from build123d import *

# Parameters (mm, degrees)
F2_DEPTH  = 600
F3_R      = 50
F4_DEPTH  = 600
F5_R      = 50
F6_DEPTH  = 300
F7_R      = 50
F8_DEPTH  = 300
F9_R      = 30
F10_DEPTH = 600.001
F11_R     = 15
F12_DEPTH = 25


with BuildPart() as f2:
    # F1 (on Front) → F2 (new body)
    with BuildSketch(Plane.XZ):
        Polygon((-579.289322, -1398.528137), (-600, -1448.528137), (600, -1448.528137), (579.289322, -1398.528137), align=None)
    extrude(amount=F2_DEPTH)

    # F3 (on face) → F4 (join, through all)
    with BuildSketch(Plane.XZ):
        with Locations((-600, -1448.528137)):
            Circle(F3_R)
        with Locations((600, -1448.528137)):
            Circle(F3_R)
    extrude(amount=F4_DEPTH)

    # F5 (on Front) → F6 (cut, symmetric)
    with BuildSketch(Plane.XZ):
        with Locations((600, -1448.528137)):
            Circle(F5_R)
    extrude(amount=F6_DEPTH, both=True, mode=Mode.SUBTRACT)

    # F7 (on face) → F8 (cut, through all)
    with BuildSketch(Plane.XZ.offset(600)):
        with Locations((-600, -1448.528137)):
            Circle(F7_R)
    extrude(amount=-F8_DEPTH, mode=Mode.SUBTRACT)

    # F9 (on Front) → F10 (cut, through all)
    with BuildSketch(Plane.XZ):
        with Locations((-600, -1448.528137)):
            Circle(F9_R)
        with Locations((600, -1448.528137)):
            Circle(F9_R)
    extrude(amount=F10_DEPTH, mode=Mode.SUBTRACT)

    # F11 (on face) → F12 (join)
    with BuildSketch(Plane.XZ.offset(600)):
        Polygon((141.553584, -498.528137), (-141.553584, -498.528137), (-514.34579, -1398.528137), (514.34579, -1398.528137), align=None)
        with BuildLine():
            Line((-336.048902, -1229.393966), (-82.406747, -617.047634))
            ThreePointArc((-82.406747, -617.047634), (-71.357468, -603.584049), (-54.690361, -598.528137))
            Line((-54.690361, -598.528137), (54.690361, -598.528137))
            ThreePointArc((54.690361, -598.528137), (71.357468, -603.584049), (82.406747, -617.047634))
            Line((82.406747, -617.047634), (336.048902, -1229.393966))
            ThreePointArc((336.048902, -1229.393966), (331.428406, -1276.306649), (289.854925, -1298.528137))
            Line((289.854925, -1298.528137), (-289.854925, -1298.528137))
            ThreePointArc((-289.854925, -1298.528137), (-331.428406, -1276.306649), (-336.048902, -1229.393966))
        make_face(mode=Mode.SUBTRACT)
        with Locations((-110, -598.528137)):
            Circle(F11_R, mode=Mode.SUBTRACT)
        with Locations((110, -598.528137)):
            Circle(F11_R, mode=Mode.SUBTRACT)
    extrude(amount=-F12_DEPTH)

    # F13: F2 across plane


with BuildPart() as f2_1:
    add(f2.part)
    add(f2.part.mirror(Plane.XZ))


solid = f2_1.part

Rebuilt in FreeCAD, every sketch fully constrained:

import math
import FreeCAD as App
import Part
import Sketcher
Q = App.Units.Quantity


def add_polygon(sketch, points):
    """Adds a closed chain of lines whose ends are joined by coincident constraints."""
    first, n = sketch.GeometryCount, len(points)
    for a, b in zip(points, points[1:] + points[:1]):
        sketch.addGeometry(Part.LineSegment(App.Vector(*a, 0), App.Vector(*b, 0)), False)
    for i in range(n):
        sketch.addConstraint(Sketcher.Constraint("Coincident", first + i, 2, first + (i + 1) % n, 1))

doc = App.newDocument("Part")
body = doc.addObject("PartDesign::Body", "Body")

# Sketch on XZ plane
sketch1 = body.newObject("Sketcher::SketchObject", "Sketch")
sketch1.AttachmentSupport = (doc.getObject("XZ_Plane"), [""])
sketch1.MapMode = "FlatFace"
add_polygon(sketch1, [(-579, -1399), (-600, -1449), (600, -1449), (579, -1399)])  # lines 0-3
sketch1.addConstraint([
    Sketcher.Constraint("Horizontal", 1),
    Sketcher.Constraint("Horizontal", 3),
    Sketcher.Constraint("Equal", 0, 2),
    Sketcher.Constraint("DistanceX", 1, 1, 1, 2, Q("1200 mm")),
    Sketcher.Constraint("DistanceX", 0, 2, -1, 1, Q("600 mm")),
    Sketcher.Constraint("Angle", 0, Q("-112.5 deg")),
    Sketcher.Constraint("DistanceY", 1, 2, 2, 2, Q("50 mm")),
    Sketcher.Constraint("DistanceY", 0, 2, -1, 1, Q("1448.528137 mm")),
])
pad1 = body.newObject("PartDesign::Pad", "Pad")
pad1.Profile = sketch1
pad1.Length = 600

# Sketch on XZ plane
sketch2 = body.newObject("Sketcher::SketchObject", "Sketch001")
sketch2.AttachmentSupport = (doc.getObject("XZ_Plane"), [""])
sketch2.MapMode = "FlatFace"
sketch2.addGeometry([
    Part.Circle(App.Vector(-600, -1449, 0), App.Vector(0, 0, 1), 50),
    Part.Circle(App.Vector(600, -1449, 0), App.Vector(0, 0, 1), 50),
], False)
sketch2.addConstraint([
    Sketcher.Constraint("Equal", 0, 1),
    Sketcher.Constraint("Symmetric", 0, 3, 1, 3, -2),
    Sketcher.Constraint("Diameter", 0, Q("100 mm")),
    Sketcher.Constraint("DistanceX", 0, 3, -1, 1, Q("600 mm")),
    Sketcher.Constraint("DistanceY", 0, 3, -1, 1, Q("1448.528137 mm")),
])
pad2 = body.newObject("PartDesign::Pad", "Pad001")
pad2.Profile = sketch2
pad2.Type = "UpToLast"

# Sketch on XZ plane
sketch3 = body.newObject("Sketcher::SketchObject", "Sketch002")
sketch3.AttachmentSupport = (doc.getObject("XZ_Plane"), [""])
sketch3.MapMode = "FlatFace"
sketch3.addGeometry(Part.Circle(App.Vector(600, -1449, 0), App.Vector(0, 0, 1), 50), False)
sketch3.addConstraint([
    Sketcher.Constraint("Diameter", 0, Q("100 mm")),
    Sketcher.Constraint("DistanceX", -1, 1, 0, 3, Q("600 mm")),
    Sketcher.Constraint("DistanceY", 0, 3, -1, 1, Q("1448.528137 mm")),
])
pocket1 = body.newObject("PartDesign::Pocket", "Pocket")
pocket1.Profile = sketch3
pocket1.Length = 600
pocket1.Midplane = True

# Sketch on XZ plane
sketch4 = body.newObject("Sketcher::SketchObject", "Sketch003")
sketch4.AttachmentSupport = (doc.getObject("XZ_Plane"), [""])
sketch4.MapMode = "FlatFace"
sketch4.AttachmentOffset = App.Placement(App.Vector(0, 0, 600), App.Rotation())
sketch4.addGeometry(Part.Circle(App.Vector(-600, -1449, 0), App.Vector(0, 0, 1), 50), False)
sketch4.addConstraint([
    Sketcher.Constraint("Diameter", 0, Q("100 mm")),
    Sketcher.Constraint("DistanceX", 0, 3, -1, 1, Q("600 mm")),
    Sketcher.Constraint("DistanceY", 0, 3, -1, 1, Q("1448.528137 mm")),
])
pocket2 = body.newObject("PartDesign::Pocket", "Pocket001")
pocket2.Profile = sketch4
pocket2.Length = 300

# Sketch on XZ plane
sketch5 = body.newObject("Sketcher::SketchObject", "Sketch004")
sketch5.AttachmentSupport = (doc.getObject("XZ_Plane"), [""])
sketch5.MapMode = "FlatFace"
sketch5.addGeometry([
    Part.Circle(App.Vector(-600, -1449, 0), App.Vector(0, 0, 1), 30),
    Part.Circle(App.Vector(600, -1449, 0), App.Vector(0, 0, 1), 30),
], False)
sketch5.addConstraint([
    Sketcher.Constraint("Equal", 0, 1),
    Sketcher.Constraint("Symmetric", 0, 3, 1, 3, -2),
    Sketcher.Constraint("Diameter", 0, Q("60 mm")),
    Sketcher.Constraint("DistanceX", 0, 3, -1, 1, Q("600 mm")),
    Sketcher.Constraint("DistanceY", 0, 3, -1, 1, Q("1448.528137 mm")),
])
pocket3 = body.newObject("PartDesign::Pocket", "Pocket002")
pocket3.Profile = sketch5
pocket3.Type = "ThroughAll"
pocket3.Reversed = True

# Sketch on XZ plane
sketch6 = body.newObject("Sketcher::SketchObject", "Sketch005")
sketch6.AttachmentSupport = (doc.getObject("XZ_Plane"), [""])
sketch6.MapMode = "FlatFace"
sketch6.AttachmentOffset = App.Placement(App.Vector(0, 0, 600), App.Rotation())
add_polygon(sketch6, [(142, -499), (-142, -499), (-514, -1399), (514, -1399)])  # lines 0-3
sketch6.addGeometry(Part.ArcOfCircle(Part.Circle(App.Vector(-290, -1249, 0), App.Vector(0, 0, 1), 50), math.radians(157), math.radians(270)), False)  # 4
sketch6.addGeometry(Part.LineSegment(App.Vector(-336, -1229, 0), App.Vector(-82, -617, 0)), False)  # 5
sketch6.addGeometry(Part.ArcOfCircle(Part.Circle(App.Vector(-55, -629, 0), App.Vector(0, 0, 1), 30), math.radians(90), math.radians(157)), False)  # 6
sketch6.addGeometry(Part.LineSegment(App.Vector(-55, -599, 0), App.Vector(55, -599, 0)), False)  # 7
sketch6.addGeometry(Part.ArcOfCircle(Part.Circle(App.Vector(55, -629, 0), App.Vector(0, 0, 1), 30), math.radians(23), math.radians(90)), False)  # 8
sketch6.addGeometry(Part.LineSegment(App.Vector(82, -617, 0), App.Vector(336, -1229, 0)), False)  # 9
sketch6.addGeometry(Part.ArcOfCircle(Part.Circle(App.Vector(290, -1249, 0), App.Vector(0, 0, 1), 50), math.radians(-90), math.radians(23)), False)  # 10
sketch6.addGeometry(Part.LineSegment(App.Vector(290, -1299, 0), App.Vector(-290, -1299, 0)), False)  # 11
sketch6.addGeometry(Part.Circle(App.Vector(-110, -599, 0), App.Vector(0, 0, 1), 15), False)  # 12
sketch6.addGeometry(Part.Circle(App.Vector(110, -599, 0), App.Vector(0, 0, 1), 15), False)  # 13
sketch6.addConstraint([
    Sketcher.Constraint("Tangent", 4, 1, 5, 1),
    Sketcher.Constraint("Tangent", 5, 2, 6, 2),
    Sketcher.Constraint("Tangent", 6, 1, 7, 1),
    Sketcher.Constraint("Tangent", 7, 2, 8, 2),
    Sketcher.Constraint("Tangent", 8, 1, 9, 1),
    Sketcher.Constraint("Tangent", 9, 2, 10, 2),
    Sketcher.Constraint("Tangent", 10, 1, 11, 1),
    Sketcher.Constraint("Tangent", 11, 2, 4, 2),
    Sketcher.Constraint("Horizontal", 0),
    Sketcher.Constraint("Horizontal", 2),
    Sketcher.Constraint("Horizontal", 7),
    Sketcher.Constraint("Horizontal", 11),
    Sketcher.Constraint("Equal", 6, 8),
    Sketcher.Constraint("Equal", 4, 10),
    Sketcher.Constraint("Equal", 12, 13),
    Sketcher.Constraint("Symmetric", 12, 3, 13, 3, -2),
    Sketcher.Constraint("Parallel", 1, 5),
    Sketcher.Constraint("Parallel", 3, 9),
    Sketcher.Constraint("Horizontal", 13, 3, 6, 1),
    Sketcher.Constraint("Equal", 1, 3),
    Sketcher.Constraint("Diameter", 12, Q("30 mm")),
    Sketcher.Constraint("Radius", 4, Q("49.999999 mm")),
    Sketcher.Constraint("Radius", 6, Q("30.000002 mm")),
    Sketcher.Constraint("DistanceX", 12, 3, -1, 1, Q("110 mm")),
    Sketcher.Constraint("Angle", 1, Q("-112.5 deg")),
    Sketcher.Constraint("DistanceY", 4, 3, 6, 3, Q("619.999999 mm")),
    Sketcher.Constraint("DistanceY", 12, 3, 0, 2, Q("100 mm")),
    Sketcher.Constraint("DistanceY", 1, 2, 4, 3, Q("149.999999 mm")),
    Sketcher.Constraint("DistanceX", 0, 2, 0, 1, Q("283.107168 mm")),
    Sketcher.Constraint("DistanceX", 11, 2, 11, 1, Q("579.70985 mm")),
    Sketcher.Constraint("DistanceX", -1, 1, 9, 2, Q("336.048902 mm")),
    Sketcher.Constraint("DistanceY", 6, 3, -1, 1, Q("628.528139 mm")),
    Sketcher.Constraint("DistanceX", 1, 2, -1, 1, Q("514.34579 mm")),
])
pad3 = body.newObject("PartDesign::Pad", "Pad002")
pad3.Profile = sketch6
pad3.Length = 25
pad3.Reversed = True
body2 = doc.addObject("PartDesign::Body", "Body001")
doc.recompute()

body2.BaseFeature = body
doc.recompute()

mirroring = doc.addObject("Part::Mirroring", "Mirroring")
mirroring.Source = body
mirroring.Base = App.Vector(0, 0, 0)
mirroring.Normal = App.Vector(0, -1, 0)
body3 = doc.addObject("PartDesign::Body", "Body002")
body3.BaseFeature = mirroring
boolean = body2.newObject("PartDesign::Boolean", "Boolean")
boolean.Type = "Fuse"
boolean.addObjects([body3])
doc.recompute()
mirroring.Visibility = False

doc.recompute()
